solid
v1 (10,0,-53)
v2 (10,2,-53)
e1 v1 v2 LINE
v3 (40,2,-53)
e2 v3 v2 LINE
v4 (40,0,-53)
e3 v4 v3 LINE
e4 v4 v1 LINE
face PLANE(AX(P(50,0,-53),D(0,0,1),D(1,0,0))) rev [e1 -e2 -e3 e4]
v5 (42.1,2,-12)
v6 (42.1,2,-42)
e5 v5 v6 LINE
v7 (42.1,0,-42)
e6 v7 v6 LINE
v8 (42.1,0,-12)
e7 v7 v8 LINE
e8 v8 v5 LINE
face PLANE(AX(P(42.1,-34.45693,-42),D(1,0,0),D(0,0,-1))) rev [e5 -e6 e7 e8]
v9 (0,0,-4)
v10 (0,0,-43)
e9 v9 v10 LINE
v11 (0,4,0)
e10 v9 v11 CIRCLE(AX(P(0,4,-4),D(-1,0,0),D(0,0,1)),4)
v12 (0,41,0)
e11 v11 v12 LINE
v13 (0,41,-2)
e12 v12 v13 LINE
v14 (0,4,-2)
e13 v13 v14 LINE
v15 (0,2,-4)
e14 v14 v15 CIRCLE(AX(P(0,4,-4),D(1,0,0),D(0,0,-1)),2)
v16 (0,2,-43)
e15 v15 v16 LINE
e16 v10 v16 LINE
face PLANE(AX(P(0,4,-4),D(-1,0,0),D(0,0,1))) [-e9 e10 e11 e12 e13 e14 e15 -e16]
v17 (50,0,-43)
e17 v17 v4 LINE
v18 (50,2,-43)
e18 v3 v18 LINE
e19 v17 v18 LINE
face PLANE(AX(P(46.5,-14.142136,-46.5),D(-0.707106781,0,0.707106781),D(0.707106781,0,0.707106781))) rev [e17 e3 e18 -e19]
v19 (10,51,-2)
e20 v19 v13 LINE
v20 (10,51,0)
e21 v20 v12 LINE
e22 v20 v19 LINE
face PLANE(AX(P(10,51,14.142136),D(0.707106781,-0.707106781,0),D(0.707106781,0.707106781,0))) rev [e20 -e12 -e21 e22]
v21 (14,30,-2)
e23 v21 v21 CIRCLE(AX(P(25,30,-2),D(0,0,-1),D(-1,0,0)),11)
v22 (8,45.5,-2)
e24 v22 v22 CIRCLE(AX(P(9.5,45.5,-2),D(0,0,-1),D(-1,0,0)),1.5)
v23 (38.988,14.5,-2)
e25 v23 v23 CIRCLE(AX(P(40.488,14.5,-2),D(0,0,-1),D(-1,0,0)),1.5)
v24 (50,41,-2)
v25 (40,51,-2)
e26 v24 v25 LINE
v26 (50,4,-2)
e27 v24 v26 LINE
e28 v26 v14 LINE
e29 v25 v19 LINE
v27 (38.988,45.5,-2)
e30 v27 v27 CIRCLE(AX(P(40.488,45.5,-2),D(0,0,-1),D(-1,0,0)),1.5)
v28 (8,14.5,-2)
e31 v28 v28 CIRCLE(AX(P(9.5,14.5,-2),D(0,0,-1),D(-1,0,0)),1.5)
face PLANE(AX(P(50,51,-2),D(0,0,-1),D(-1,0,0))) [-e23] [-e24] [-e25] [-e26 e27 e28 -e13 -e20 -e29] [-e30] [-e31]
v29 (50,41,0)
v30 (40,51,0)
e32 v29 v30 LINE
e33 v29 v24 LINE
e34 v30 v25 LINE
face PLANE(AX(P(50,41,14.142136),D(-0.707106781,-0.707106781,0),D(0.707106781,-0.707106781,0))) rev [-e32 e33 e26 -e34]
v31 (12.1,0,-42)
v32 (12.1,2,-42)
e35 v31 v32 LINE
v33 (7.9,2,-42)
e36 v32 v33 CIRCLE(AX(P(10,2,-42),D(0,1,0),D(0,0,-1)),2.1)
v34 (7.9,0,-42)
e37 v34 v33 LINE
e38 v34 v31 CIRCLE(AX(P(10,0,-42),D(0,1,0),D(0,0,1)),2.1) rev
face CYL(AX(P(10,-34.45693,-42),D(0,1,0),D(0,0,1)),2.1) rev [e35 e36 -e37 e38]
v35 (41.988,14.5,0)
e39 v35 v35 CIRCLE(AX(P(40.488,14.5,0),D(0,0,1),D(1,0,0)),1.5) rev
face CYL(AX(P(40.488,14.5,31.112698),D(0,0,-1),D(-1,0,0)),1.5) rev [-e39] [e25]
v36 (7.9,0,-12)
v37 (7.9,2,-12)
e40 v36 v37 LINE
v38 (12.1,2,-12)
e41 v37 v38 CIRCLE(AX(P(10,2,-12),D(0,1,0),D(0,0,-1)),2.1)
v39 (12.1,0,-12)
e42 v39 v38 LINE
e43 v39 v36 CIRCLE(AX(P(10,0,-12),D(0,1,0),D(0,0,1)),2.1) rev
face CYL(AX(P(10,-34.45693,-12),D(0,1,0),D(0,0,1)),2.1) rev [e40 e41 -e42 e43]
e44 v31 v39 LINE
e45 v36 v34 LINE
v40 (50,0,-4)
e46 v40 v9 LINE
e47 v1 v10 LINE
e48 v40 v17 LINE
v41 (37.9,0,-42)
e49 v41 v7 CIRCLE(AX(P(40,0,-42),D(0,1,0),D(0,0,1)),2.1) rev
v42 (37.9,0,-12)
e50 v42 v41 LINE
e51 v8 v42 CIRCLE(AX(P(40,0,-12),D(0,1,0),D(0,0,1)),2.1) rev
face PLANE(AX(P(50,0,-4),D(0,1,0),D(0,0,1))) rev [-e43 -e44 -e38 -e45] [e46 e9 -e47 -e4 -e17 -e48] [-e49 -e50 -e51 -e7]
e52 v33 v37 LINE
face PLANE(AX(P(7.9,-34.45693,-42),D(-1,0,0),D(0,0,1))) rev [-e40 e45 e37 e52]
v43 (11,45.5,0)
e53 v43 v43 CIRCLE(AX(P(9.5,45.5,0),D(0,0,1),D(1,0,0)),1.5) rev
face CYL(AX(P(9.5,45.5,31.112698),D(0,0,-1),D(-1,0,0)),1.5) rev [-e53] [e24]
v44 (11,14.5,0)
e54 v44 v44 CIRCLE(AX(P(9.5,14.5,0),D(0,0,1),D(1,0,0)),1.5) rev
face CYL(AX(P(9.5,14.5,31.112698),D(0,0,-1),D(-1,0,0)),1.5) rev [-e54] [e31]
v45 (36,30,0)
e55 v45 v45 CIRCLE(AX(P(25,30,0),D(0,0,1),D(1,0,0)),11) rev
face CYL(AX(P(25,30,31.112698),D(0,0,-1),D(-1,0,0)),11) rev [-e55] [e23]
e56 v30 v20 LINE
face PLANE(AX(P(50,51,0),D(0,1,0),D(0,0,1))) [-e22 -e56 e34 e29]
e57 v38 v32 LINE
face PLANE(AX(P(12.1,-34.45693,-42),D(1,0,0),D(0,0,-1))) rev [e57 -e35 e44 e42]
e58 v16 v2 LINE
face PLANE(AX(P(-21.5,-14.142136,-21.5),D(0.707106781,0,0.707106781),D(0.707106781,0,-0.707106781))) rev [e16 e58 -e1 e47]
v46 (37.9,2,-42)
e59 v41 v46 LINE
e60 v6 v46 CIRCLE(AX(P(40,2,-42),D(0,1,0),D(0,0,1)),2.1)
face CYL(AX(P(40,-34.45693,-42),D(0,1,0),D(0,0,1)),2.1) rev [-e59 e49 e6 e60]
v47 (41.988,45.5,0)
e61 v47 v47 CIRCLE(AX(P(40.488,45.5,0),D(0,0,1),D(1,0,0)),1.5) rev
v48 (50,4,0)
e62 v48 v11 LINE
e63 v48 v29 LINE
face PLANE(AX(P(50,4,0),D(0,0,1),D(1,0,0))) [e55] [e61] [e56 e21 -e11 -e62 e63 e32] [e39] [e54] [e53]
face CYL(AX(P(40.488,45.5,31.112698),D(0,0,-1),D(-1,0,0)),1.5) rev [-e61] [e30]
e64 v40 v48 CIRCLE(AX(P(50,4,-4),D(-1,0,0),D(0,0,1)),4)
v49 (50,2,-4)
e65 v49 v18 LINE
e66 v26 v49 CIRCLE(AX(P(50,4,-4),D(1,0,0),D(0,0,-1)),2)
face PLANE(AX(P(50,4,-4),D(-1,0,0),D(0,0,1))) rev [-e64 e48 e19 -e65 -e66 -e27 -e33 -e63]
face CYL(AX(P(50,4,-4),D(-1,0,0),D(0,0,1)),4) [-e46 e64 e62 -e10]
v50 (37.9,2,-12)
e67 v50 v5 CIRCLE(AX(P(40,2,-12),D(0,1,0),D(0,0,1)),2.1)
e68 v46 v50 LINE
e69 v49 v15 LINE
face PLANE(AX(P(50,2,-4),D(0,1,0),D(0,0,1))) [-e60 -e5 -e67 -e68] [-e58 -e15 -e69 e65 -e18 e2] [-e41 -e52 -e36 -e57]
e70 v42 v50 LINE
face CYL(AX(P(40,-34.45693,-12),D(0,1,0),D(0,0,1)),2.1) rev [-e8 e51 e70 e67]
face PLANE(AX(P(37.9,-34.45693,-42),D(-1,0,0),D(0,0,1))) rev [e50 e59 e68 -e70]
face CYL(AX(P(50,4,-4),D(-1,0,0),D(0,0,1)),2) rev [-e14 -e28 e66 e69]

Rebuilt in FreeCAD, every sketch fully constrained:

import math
import FreeCAD as App
import Part
import Sketcher
Q = App.Units.Quantity

doc = App.newDocument("Part")
body = doc.addObject("PartDesign::Body", "Body")

sketch1 = body.newObject("Sketcher::SketchObject", "Sketch")
sketch1.AttachmentSupport = (doc.getObject("YZ_Plane"), [""])
sketch1.MapMode = "FlatFace"
sketch1.addGeometry([
    Part.LineSegment(App.Vector(0, -4, 0), App.Vector(0, -53, 0)),
    Part.LineSegment(App.Vector(0, -53, 0), App.Vector(2, -53, 0)),
    Part.LineSegment(App.Vector(2, -53, 0), App.Vector(2, -4, 0)),
    Part.ArcOfCircle(Part.Circle(App.Vector(4, -4, 0), App.Vector(0, 0, 1), 2), math.radians(90), math.radians(180)),
    Part.LineSegment(App.Vector(4, -2, 0), App.Vector(51, -2, 0)),
    Part.LineSegment(App.Vector(51, -2, 0), App.Vector(51, 0, 0)),
    Part.LineSegment(App.Vector(51, 0, 0), App.Vector(4, 0, 0)),
    Part.ArcOfCircle(Part.Circle(App.Vector(4, -4, 0), App.Vector(0, 0, 1), 4), math.radians(90), math.radians(180)),
], False)
sketch1.addConstraint([
    Sketcher.Constraint("Coincident", 0, 2, 1, 1),
    Sketcher.Constraint("Coincident", 1, 2, 2, 1),
    Sketcher.Constraint("Tangent", 2, 2, 3, 2),
    Sketcher.Constraint("Tangent", 3, 1, 4, 1),
    Sketcher.Constraint("Coincident", 4, 2, 5, 1),
    Sketcher.Constraint("Coincident", 5, 2, 6, 1),
    Sketcher.Constraint("Tangent", 6, 2, 7, 1),
    Sketcher.Constraint("Tangent", 7, 2, 0, 1),
    Sketcher.Constraint("Vertical", 0),
    Sketcher.Constraint("Horizontal", 1),
    Sketcher.Constraint("Vertical", 2),
    Sketcher.Constraint("Horizontal", 4),
    Sketcher.Constraint("Vertical", 5),
    Sketcher.Constraint("Horizontal", 6),
    Sketcher.Constraint("Coincident", 7, 3, 3, 3),
    Sketcher.Constraint("PointOnObject", 0, 2, -2),
    Sketcher.Constraint("PointOnObject", 5, 2, -1),
    Sketcher.Constraint("Radius", 3, Q("2 mm")),
    Sketcher.Constraint("Radius", 7, Q("4 mm")),
    Sketcher.Constraint("DistanceX", 4, 1, 4, 2, Q("47 mm")),
    Sketcher.Constraint("DistanceY", 0, 2, 0, 1, Q("49 mm")),
])
pad1 = body.newObject("PartDesign::Pad", "Pad")
pad1.Profile = sketch1
pad1.Length = 50

sketch2 = body.newObject("Sketcher::SketchObject", "Sketch001")
sketch2.AttachmentSupport = (doc.getObject("XY_Plane"), [""])
sketch2.MapMode = "FlatFace"
sketch2.AttachmentOffset = App.Placement(App.Vector(0, 0, -2), App.Rotation())
sketch2.addGeometry([
    Part.Circle(App.Vector(25, 30, 0), App.Vector(0, 0, 1), 11),
    Part.Circle(App.Vector(9.5, 45.5, 0), App.Vector(0, 0, 1), 1.5),
    Part.Circle(App.Vector(40.5, 45.5, 0), App.Vector(0, 0, 1), 1.5),
    Part.Circle(App.Vector(40.5, 14.5, 0), App.Vector(0, 0, 1), 1.5),
    Part.Circle(App.Vector(9.5, 14.5, 0), App.Vector(0, 0, 1), 1.5),
], False)
sketch2.addConstraint([
    Sketcher.Constraint("Equal", 1, 2),
    Sketcher.Constraint("Equal", 2, 3),
    Sketcher.Constraint("Equal", 3, 4),
    Sketcher.Constraint("Horizontal", 1, 3, 2, 3),
    Sketcher.Constraint("Horizontal", 3, 3, 4, 3),
    Sketcher.Constraint("Vertical", 2, 3, 3, 3),
    Sketcher.Constraint("Vertical", 1, 3, 4, 3),
    Sketcher.Constraint("Diameter", 0, Q("22 mm")),
    Sketcher.Constraint("Diameter", 1, Q("3 mm")),
    Sketcher.Constraint("DistanceX", -1, 1, 0, 3, Q("25 mm")),
    Sketcher.Constraint("DistanceY", -1, 1, 0, 3, Q("30 mm")),
    Sketcher.Constraint("DistanceY", 3, 3, 2, 3, Q("31 mm")),
    Sketcher.Constraint("DistanceX", -1, 1, 1, 3, Q("9.5 mm")),
    Sketcher.Constraint("DistanceY", -1, 1, 1, 3, Q("45.5 mm")),
    Sketcher.Constraint("DistanceX", -1, 1, 2, 3, Q("40.488 mm")),
])
pocket1 = body.newObject("PartDesign::Pocket", "Pocket")
pocket1.Profile = sketch2
pocket1.Length = 2
pocket1.Reversed = True

sketch3 = body.newObject("Sketcher::SketchObject", "Sketch002")
sketch3.AttachmentSupport = (doc.getObject("XZ_Plane"), [""])
sketch3.MapMode = "FlatFace"
sketch3.AttachmentOffset = App.Placement(App.Vector(0, 0, -2), App.Rotation())
sketch3.addGeometry([
    Part.LineSegment(App.Vector(42.1, -12, 0), App.Vector(42.1, -42, 0)),
    Part.ArcOfCircle(Part.Circle(App.Vector(40, -42, 0), App.Vector(0, 0, 1), 2.1), math.radians(180), math.radians(360)),
    Part.LineSegment(App.Vector(37.9, -42, 0), App.Vector(37.9, -12, 0)),
    Part.ArcOfCircle(Part.Circle(App.Vector(40, -12, 0), App.Vector(0, 0, 1), 2.1), math.radians(0), math.radians(180)),
    Part.LineSegment(App.Vector(7.9, -42, 0), App.Vector(7.9, -12, 0)),
    Part.ArcOfCircle(Part.Circle(App.Vector(10, -12, 0), App.Vector(0, 0, 1), 2.1), math.radians(0), math.radians(180)),
    Part.LineSegment(App.Vector(12.1, -12, 0), App.Vector(12.1, -42, 0)),
    Part.ArcOfCircle(Part.Circle(App.Vector(10, -42, 0), App.Vector(0, 0, 1), 2.1), math.radians(180), math.radians(360)),
], False)
sketch3.addConstraint([
    Sketcher.Constraint("Tangent", 0, 2, 1, 2),
    Sketcher.Constraint("Tangent", 1, 1, 2, 1),
    Sketcher.Constraint("Tangent", 2, 2, 3, 2),
    Sketcher.Constraint("Tangent", 3, 1, 0, 1),
    Sketcher.Constraint("Tangent", 4, 2, 5, 2),
    Sketcher.Constraint("Tangent", 5, 1, 6, 1),
    Sketcher.Constraint("Tangent", 6, 2, 7, 2),
    Sketcher.Constraint("Tangent", 7, 1, 4, 1),
    Sketcher.Constraint("Vertical", 0),
    Sketcher.Constraint("Vertical", 2),
    Sketcher.Constraint("Vertical", 4),
    Sketcher.Constraint("Vertical", 6),
    Sketcher.Constraint("Equal", 3, 5),
    Sketcher.Constraint("Horizontal", 3, 3, 5, 3),
    Sketcher.Constraint("Horizontal", 1, 3, 7, 3),
    Sketcher.Constraint("Radius", 1, Q("2.1 mm")),
    Sketcher.Constraint("DistanceY", 0, 2, 0, 1, Q("30 mm")),
    Sketcher.Constraint("DistanceX", -1, 1, 1, 3, Q("40 mm")),
    Sketcher.Constraint("DistanceY", 1, 3, -1, 1, Q("42 mm")),
    Sketcher.Constraint("DistanceX", -1, 1, 5, 3, Q("10 mm")),
])
pocket2 = body.newObject("PartDesign::Pocket", "Pocket001")
pocket2.Profile = sketch3
pocket2.Length = 2
pocket2.Reversed = True

sketch4 = body.newObject("Sketcher::SketchObject", "Sketch003")
sketch4.AttachmentSupport = (doc.getObject("XZ_Plane"), [""])
sketch4.MapMode = "FlatFace"
sketch4.AttachmentOffset = App.Placement(App.Vector(0, 0, -2), App.Rotation())
sketch4.addGeometry([
    Part.LineSegment(App.Vector(0, -53, 0), App.Vector(0, -43, 0)),
    Part.LineSegment(App.Vector(0, -43, 0), App.Vector(10, -53, 0)),
    Part.LineSegment(App.Vector(10, -53, 0), App.Vector(0, -53, 0)),
    Part.LineSegment(App.Vector(50, -53, 0), App.Vector(40, -53, 0)),
    Part.LineSegment(App.Vector(40, -53, 0), App.Vector(50, -43, 0)),
    Part.LineSegment(App.Vector(50, -43, 0), App.Vector(50, -53, 0)),
], False)
sketch4.addConstraint([
    Sketcher.Constraint("Coincident", 0, 2, 1, 1),
    Sketcher.Constraint("Coincident", 1, 2, 2, 1),
    Sketcher.Constraint("Coincident", 2, 2, 0, 1),
    Sketcher.Constraint("Coincident", 3, 2, 4, 1),
    Sketcher.Constraint("Coincident", 4, 2, 5, 1),
    Sketcher.Constraint("Coincident", 5, 2, 3, 1),
    Sketcher.Constraint("Vertical", 0),
    Sketcher.Constraint("Horizontal", 2),
    Sketcher.Constraint("Horizontal", 3),
    Sketcher.Constraint("Vertical", 5),
    Sketcher.Constraint("PointOnObject", 0, 2, -2),
    Sketcher.Constraint("Perpendicular", 1, 4),
    Sketcher.Constraint("Horizontal", 2, 2, 3, 2),
    Sketcher.Constraint("Horizontal", 0, 2, 4, 2),
    Sketcher.Constraint("Equal", 2, 3),
    Sketcher.Constraint("DistanceX", 2, 2, 2, 1, Q("10 mm")),
    Sketcher.Constraint("DistanceY", 0, 2, -1, 1, Q("43 mm")),
    Sketcher.Constraint("DistanceX", -1, 1, 3, 2, Q("40 mm")),
])
pocket3 = body.newObject("PartDesign::Pocket", "Pocket002")
pocket3.Profile = sketch4
pocket3.Length = 2
pocket3.Reversed = True

sketch5 = body.newObject("Sketcher::SketchObject", "Sketch004")
sketch5.AttachmentSupport = (doc.getObject("XY_Plane"), [""])
sketch5.MapMode = "FlatFace"
sketch5.AttachmentOffset = App.Placement(App.Vector(0, 0, -2), App.Rotation())
sketch5.addGeometry([
    Part.LineSegment(App.Vector(50, 41, 0), App.Vector(40, 51, 0)),
    Part.LineSegment(App.Vector(40, 51, 0), App.Vector(50, 51, 0)),
    Part.LineSegment(App.Vector(50, 51, 0), App.Vector(50, 41, 0)),
    Part.LineSegment(App.Vector(10, 51, 0), App.Vector(0, 41, 0)),
    Part.LineSegment(App.Vector(0, 41, 0), App.Vector(0, 51, 0)),
    Part.LineSegment(App.Vector(0, 51, 0), App.Vector(10, 51, 0)),
], False)
sketch5.addConstraint([
    Sketcher.Constraint("Coincident", 0, 2, 1, 1),
    Sketcher.Constraint("Coincident", 1, 2, 2, 1),
    Sketcher.Constraint("Coincident", 2, 2, 0, 1),
    Sketcher.Constraint("Coincident", 3, 2, 4, 1),
    Sketcher.Constraint("Coincident", 4, 2, 5, 1),
    Sketcher.Constraint("Coincident", 5, 2, 3, 1),
    Sketcher.Constraint("Horizontal", 1),
    Sketcher.Constraint("Vertical", 2),
    Sketcher.Constraint("Vertical", 4),
    Sketcher.Constraint("Horizontal", 5),
    Sketcher.Constraint("PointOnObject", 3, 2, -2),
    Sketcher.Constraint("Perpendicular", 0, 3),
    Sketcher.Constraint("Horizontal", 2, 2, 3, 2),
    Sketcher.Constraint("Horizontal", 1, 2, 4, 2),
    Sketcher.Constraint("Equal", 1, 5),
    Sketcher.Constraint("DistanceX", 1, 1, 1, 2, Q("10 mm")),
    Sketcher.Constraint("DistanceX", -1, 1, 0, 2, Q("40 mm")),
    Sketcher.Constraint("DistanceY", -1, 1, 0, 2, Q("51 mm")),
])
pocket4 = body.newObject("PartDesign::Pocket", "Pocket003")
pocket4.Profile = sketch5
pocket4.Length = 2
pocket4.Reversed = True

doc.recompute()
